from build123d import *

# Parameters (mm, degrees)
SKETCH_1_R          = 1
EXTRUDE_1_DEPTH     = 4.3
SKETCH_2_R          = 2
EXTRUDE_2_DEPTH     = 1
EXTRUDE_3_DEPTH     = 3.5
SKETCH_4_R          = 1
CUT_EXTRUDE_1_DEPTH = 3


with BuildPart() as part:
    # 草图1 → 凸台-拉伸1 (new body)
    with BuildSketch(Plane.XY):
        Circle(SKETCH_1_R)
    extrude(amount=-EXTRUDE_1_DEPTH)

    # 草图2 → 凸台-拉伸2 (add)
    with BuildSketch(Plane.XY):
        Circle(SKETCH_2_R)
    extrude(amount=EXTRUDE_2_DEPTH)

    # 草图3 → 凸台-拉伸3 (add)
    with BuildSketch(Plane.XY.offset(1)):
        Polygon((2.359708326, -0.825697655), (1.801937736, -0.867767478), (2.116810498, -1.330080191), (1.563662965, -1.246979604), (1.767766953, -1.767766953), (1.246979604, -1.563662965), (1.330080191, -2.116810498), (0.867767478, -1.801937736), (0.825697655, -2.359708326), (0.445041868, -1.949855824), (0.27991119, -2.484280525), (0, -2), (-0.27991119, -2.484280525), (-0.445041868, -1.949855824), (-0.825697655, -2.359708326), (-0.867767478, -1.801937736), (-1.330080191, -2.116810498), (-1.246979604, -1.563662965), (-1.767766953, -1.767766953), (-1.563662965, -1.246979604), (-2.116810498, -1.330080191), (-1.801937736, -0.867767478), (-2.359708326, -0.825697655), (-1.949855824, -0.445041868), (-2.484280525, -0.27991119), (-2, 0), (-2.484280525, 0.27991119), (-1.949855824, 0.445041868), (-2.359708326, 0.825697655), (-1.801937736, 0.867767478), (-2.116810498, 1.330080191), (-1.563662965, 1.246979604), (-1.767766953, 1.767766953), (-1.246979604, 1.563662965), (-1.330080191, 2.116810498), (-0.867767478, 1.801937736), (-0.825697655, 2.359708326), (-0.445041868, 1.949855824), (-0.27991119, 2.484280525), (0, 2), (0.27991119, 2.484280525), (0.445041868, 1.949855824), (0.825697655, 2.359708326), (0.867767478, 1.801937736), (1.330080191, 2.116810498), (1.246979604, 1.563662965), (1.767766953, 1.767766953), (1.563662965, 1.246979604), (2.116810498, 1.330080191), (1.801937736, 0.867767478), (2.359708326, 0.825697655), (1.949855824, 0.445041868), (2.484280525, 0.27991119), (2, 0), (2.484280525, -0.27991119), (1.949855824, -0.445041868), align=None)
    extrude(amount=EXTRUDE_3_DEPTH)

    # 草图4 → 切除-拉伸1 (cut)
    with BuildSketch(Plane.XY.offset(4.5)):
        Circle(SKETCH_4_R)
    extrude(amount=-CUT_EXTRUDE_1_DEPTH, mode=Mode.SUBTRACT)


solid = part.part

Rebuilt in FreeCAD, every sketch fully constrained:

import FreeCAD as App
import Part
import Sketcher

doc = App.newDocument("Part")
body = doc.addObject("PartDesign::Body", "Body")

# Sketch on XY plane
sketch1 = doc.addObject("Sketcher::SketchObject", "Sketch")
body.addObject(sketch1)
sketch1.AttachmentSupport = (doc.XY_Plane, [""])
sketch1.MapMode = "FlatFace"
sketch1.addGeometry(Part.Circle(App.Vector(0, 0, 0), App.Vector(0, 0, 1), 1), False)
sketch1.addConstraint(Sketcher.Constraint("Coincident", 0, 3, -1, 1))
sketch1.addConstraint(Sketcher.Constraint("Diameter", 0, 2.0))
pad1 = doc.addObject("PartDesign::Pad", "Pad")
body.addObject(pad1)
pad1.Profile = sketch1
pad1.Length = 4.3
pad1.Reversed = True

# Sketch on XY plane
sketch2 = doc.addObject("Sketcher::SketchObject", "Sketch001")
body.addObject(sketch2)
sketch2.AttachmentSupport = (doc.XY_Plane, [""])
sketch2.MapMode = "FlatFace"
sketch2.addGeometry(Part.Circle(App.Vector(0, 0, 0), App.Vector(0, 0, 1), 2), False)
sketch2.addConstraint(Sketcher.Constraint("Coincident", 0, 3, -1, 1))
sketch2.addConstraint(Sketcher.Constraint("Diameter", 0, 4.0))
pad2 = doc.addObject("PartDesign::Pad", "Pad001")
body.addObject(pad2)
pad2.Profile = sketch2
pad2.Length = 1

# Sketch on XY plane
sketch3 = doc.addObject("Sketcher::SketchObject", "Sketch002")
body.addObject(sketch3)
sketch3.AttachmentSupport = (doc.XY_Plane, [""])
sketch3.MapMode = "FlatFace"
sketch3.AttachmentOffset = App.Placement(App.Vector(0, 0, 1), App.Rotation())
sketch3.addGeometry(Part.LineSegment(App.Vector(1.8, -0.9, 0), App.Vector(2.4, -0.8, 0)), False)
sketch3.addGeometry(Part.LineSegment(App.Vector(2.4, -0.8, 0), App.Vector(1.9, -0.4, 0)), False)
sketch3.addGeometry(Part.LineSegment(App.Vector(1.9, -0.4, 0), App.Vector(2.5, -0.3, 0)), False)
sketch3.addGeometry(Part.LineSegment(App.Vector(2.5, -0.3, 0), App.Vector(2, 0, 0)), False)
sketch3.addGeometry(Part.LineSegment(App.Vector(2, 0, 0), App.Vector(2.5, 0.3, 0)), False)
sketch3.addGeometry(Part.LineSegment(App.Vector(2.5, 0.3, 0), App.Vector(1.9, 0.4, 0)), False)
sketch3.addGeometry(Part.LineSegment(App.Vector(1.9, 0.4, 0), App.Vector(2.4, 0.8, 0)), False)
sketch3.addGeometry(Part.LineSegment(App.Vector(2.4, 0.8, 0), App.Vector(1.8, 0.9, 0)), False)
sketch3.addGeometry(Part.LineSegment(App.Vector(1.8, 0.9, 0), App.Vector(2.1, 1.3, 0)), False)
sketch3.addGeometry(Part.LineSegment(App.Vector(2.1, 1.3, 0), App.Vector(1.6, 1.2, 0)), False)
sketch3.addGeometry(Part.LineSegment(App.Vector(1.6, 1.2, 0), App.Vector(1.8, 1.8, 0)), False)
sketch3.addGeometry(Part.LineSegment(App.Vector(1.8, 1.8, 0), App.Vector(1.2, 1.6, 0)), False)
sketch3.addGeometry(Part.LineSegment(App.Vector(1.2, 1.6, 0), App.Vector(1.3, 2.1, 0)), False)
sketch3.addGeometry(Part.LineSegment(App.Vector(1.3, 2.1, 0), App.Vector(0.9, 1.8, 0)), False)
sketch3.addGeometry(Part.LineSegment(App.Vector(0.9, 1.8, 0), App.Vector(0.8, 2.4, 0)), False)
sketch3.addGeometry(Part.LineSegment(App.Vector(0.8, 2.4, 0), App.Vector(0.4, 1.9, 0)), False)
sketch3.addGeometry(Part.LineSegment(App.Vector(0.4, 1.9, 0), App.Vector(0.3, 2.5, 0)), False)
sketch3.addGeometry(Part.LineSegment(App.Vector(0.3, 2.5, 0), App.Vector(0, 2, 0)), False)
sketch3.addGeometry(Part.LineSegment(App.Vector(0, 2, 0), App.Vector(-0.3, 2.5, 0)), False)
sketch3.addGeometry(Part.LineSegment(App.Vector(-0.3, 2.5, 0), App.Vector(-0.4, 1.9, 0)), False)
sketch3.addGeometry(Part.LineSegment(App.Vector(-0.4, 1.9, 0), App.Vector(-0.8, 2.4, 0)), False)
sketch3.addGeometry(Part.LineSegment(App.Vector(-0.8, 2.4, 0), App.Vector(-0.9, 1.8, 0)), False)
sketch3.addGeometry(Part.LineSegment(App.Vector(-0.9, 1.8, 0), App.Vector(-1.3, 2.1, 0)), False)
sketch3.addGeometry(Part.LineSegment(App.Vector(-1.3, 2.1, 0), App.Vector(-1.2, 1.6, 0)), False)
sketch3.addGeometry(Part.LineSegment(App.Vector(-1.2, 1.6, 0), App.Vector(-1.8, 1.8, 0)), False)
sketch3.addGeometry(Part.LineSegment(App.Vector(-1.8, 1.8, 0), App.Vector(-1.6, 1.2, 0)), False)
sketch3.addGeometry(Part.LineSegment(App.Vector(-1.6, 1.2, 0), App.Vector(-2.1, 1.3, 0)), False)
sketch3.addGeometry(Part.LineSegment(App.Vector(-2.1, 1.3, 0), App.Vector(-1.8, 0.9, 0)), False)
sketch3.addGeometry(Part.LineSegment(App.Vector(-1.8, 0.9, 0), App.Vector(-2.4, 0.8, 0)), False)
sketch3.addGeometry(Part.LineSegment(App.Vector(-2.4, 0.8, 0), App.Vector(-1.9, 0.4, 0)), False)
sketch3.addGeometry(Part.LineSegment(App.Vector(-1.9, 0.4, 0), App.Vector(-2.5, 0.3, 0)), False)
sketch3.addGeometry(Part.LineSegment(App.Vector(-2.5, 0.3, 0), App.Vector(-2, 0, 0)), False)
sketch3.addGeometry(Part.LineSegment(App.Vector(-2, 0, 0), App.Vector(-2.5, -0.3, 0)), False)
sketch3.addGeometry(Part.LineSegment(App.Vector(-2.5, -0.3, 0), App.Vector(-1.9, -0.4, 0)), False)
sketch3.addGeometry(Part.LineSegment(App.Vector(-1.9, -0.4, 0), App.Vector(-2.4, -0.8, 0)), False)
sketch3.addGeometry(Part.LineSegment(App.Vector(-2.4, -0.8, 0), App.Vector(-1.8, -0.9, 0)), False)
sketch3.addGeometry(Part.LineSegment(App.Vector(-1.8, -0.9, 0), App.Vector(-2.1, -1.3, 0)), False)
sketch3.addGeometry(Part.LineSegment(App.Vector(-2.1, -1.3, 0), App.Vector(-1.6, -1.2, 0)), False)
sketch3.addGeometry(Part.LineSegment(App.Vector(-1.6, -1.2, 0), App.Vector(-1.8, -1.8, 0)), False)
sketch3.addGeometry(Part.LineSegment(App.Vector(-1.8, -1.8, 0), App.Vector(-1.2, -1.6, 0)), False)
sketch3.addGeometry(Part.LineSegment(App.Vector(-1.2, -1.6, 0), App.Vector(-1.3, -2.1, 0)), False)
sketch3.addGeometry(Part.LineSegment(App.Vector(-1.3, -2.1, 0), App.Vector(-0.9, -1.8, 0)), False)
sketch3.addGeometry(Part.LineSegment(App.Vector(-0.9, -1.8, 0), App.Vector(-0.8, -2.4, 0)), False)
sketch3.addGeometry(Part.LineSegment(App.Vector(-0.8, -2.4, 0), App.Vector(-0.4, -1.9, 0)), False)
sketch3.addGeometry(Part.LineSegment(App.Vector(-0.4, -1.9, 0), App.Vector(-0.3, -2.5, 0)), False)
sketch3.addGeometry(Part.LineSegment(App.Vector(-0.3, -2.5, 0), App.Vector(0, -2, 0)), False)
sketch3.addGeometry(Part.LineSegment(App.Vector(0, -2, 0), App.Vector(0.3, -2.5, 0)), False)
sketch3.addGeometry(Part.LineSegment(App.Vector(0.3, -2.5, 0), App.Vector(0.4, -1.9, 0)), False)
sketch3.addGeometry(Part.LineSegment(App.Vector(0.4, -1.9, 0), App.Vector(0.8, -2.4, 0)), False)
sketch3.addGeometry(Part.LineSegment(App.Vector(0.8, -2.4, 0), App.Vector(0.9, -1.8, 0)), False)
sketch3.addGeometry(Part.LineSegment(App.Vector(0.9, -1.8, 0), App.Vector(1.3, -2.1, 0)), False)
sketch3.addGeometry(Part.LineSegment(App.Vector(1.3, -2.1, 0), App.Vector(1.2, -1.6, 0)), False)
sketch3.addGeometry(Part.LineSegment(App.Vector(1.2, -1.6, 0), App.Vector(1.8, -1.8, 0)), False)
sketch3.addGeometry(Part.LineSegment(App.Vector(1.8, -1.8, 0), App.Vector(1.6, -1.2, 0)), False)
sketch3.addGeometry(Part.LineSegment(App.Vector(1.6, -1.2, 0), App.Vector(2.1, -1.3, 0)), False)
sketch3.addGeometry(Part.LineSegment(App.Vector(2.1, -1.3, 0), App.Vector(1.8, -0.9, 0)), False)
sketch3.addConstraint(Sketcher.Constraint("Coincident", 0, 2, 1, 1))
sketch3.addConstraint(Sketcher.Constraint("Coincident", 1, 2, 2, 1))
sketch3.addConstraint(Sketcher.Constraint("Coincident", 2, 2, 3, 1))
sketch3.addConstraint(Sketcher.Constraint("Coincident", 3, 2, 4, 1))
sketch3.addConstraint(Sketcher.Constraint("Coincident", 4, 2, 5, 1))
sketch3.addConstraint(Sketcher.Constraint("Coincident", 5, 2, 6, 1))
sketch3.addConstraint(Sketcher.Constraint("Coincident", 6, 2, 7, 1))
sketch3.addConstraint(Sketcher.Constraint("Coincident", 7, 2, 8, 1))
sketch3.addConstraint(Sketcher.Constraint("Coincident", 8, 2, 9, 1))
sketch3.addConstraint(Sketcher.Constraint("Coincident", 9, 2, 10, 1))
sketch3.addConstraint(Sketcher.Constraint("Coincident", 10, 2, 11, 1))
sketch3.addConstraint(Sketcher.Constraint("Coincident", 11, 2, 12, 1))
sketch3.addConstraint(Sketcher.Constraint("Coincident", 12, 2, 13, 1))
sketch3.addConstraint(Sketcher.Constraint("Coincident", 13, 2, 14, 1))
sketch3.addConstraint(Sketcher.Constraint("Coincident", 14, 2, 15, 1))
sketch3.addConstraint(Sketcher.Constraint("Coincident", 15, 2, 16, 1))
sketch3.addConstraint(Sketcher.Constraint("Coincident", 16, 2, 17, 1))
sketch3.addConstraint(Sketcher.Constraint("Coincident", 17, 2, 18, 1))
sketch3.addConstraint(Sketcher.Constraint("Coincident", 18, 2, 19, 1))
sketch3.addConstraint(Sketcher.Constraint("Coincident", 19, 2, 20, 1))
sketch3.addConstraint(Sketcher.Constraint("Coincident", 20, 2, 21, 1))
sketch3.addConstraint(Sketcher.Constraint("Coincident", 21, 2, 22, 1))
sketch3.addConstraint(Sketcher.Constraint("Coincident", 22, 2, 23, 1))
sketch3.addConstraint(Sketcher.Constraint("Coincident", 23, 2, 24, 1))
sketch3.addConstraint(Sketcher.Constraint("Coincident", 24, 2, 25, 1))
sketch3.addConstraint(Sketcher.Constraint("Coincident", 25, 2, 26, 1))
sketch3.addConstraint(Sketcher.Constraint("Coincident", 26, 2, 27, 1))
sketch3.addConstraint(Sketcher.Constraint("Coincident", 27, 2, 28, 1))
sketch3.addConstraint(Sketcher.Constraint("Coincident", 28, 2, 29, 1))
sketch3.addConstraint(Sketcher.Constraint("Coincident", 29, 2, 30, 1))
sketch3.addConstraint(Sketcher.Constraint("Coincident", 30, 2, 31, 1))
sketch3.addConstraint(Sketcher.Constraint("Coincident", 31, 2, 32, 1))
sketch3.addConstraint(Sketcher.Constraint("Coincident", 32, 2, 33, 1))
sketch3.addConstraint(Sketcher.Constraint("Coincident", 33, 2, 34, 1))
sketch3.addConstraint(Sketcher.Constraint("Coincident", 34, 2, 35, 1))
sketch3.addConstraint(Sketcher.Constraint("Coincident", 35, 2, 36, 1))
sketch3.addConstraint(Sketcher.Constraint("Coincident", 36, 2, 37, 1))
sketch3.addConstraint(Sketcher.Constraint("Coincident", 37, 2, 38, 1))
sketch3.addConstraint(Sketcher.Constraint("Coincident", 38, 2, 39, 1))
sketch3.addConstraint(Sketcher.Constraint("Coincident", 39, 2, 40, 1))
sketch3.addConstraint(Sketcher.Constraint("Coincident", 40, 2, 41, 1))
sketch3.addConstraint(Sketcher.Constraint("Coincident", 41, 2, 42, 1))
sketch3.addConstraint(Sketcher.Constraint("Coincident", 42, 2, 43, 1))
sketch3.addConstraint(Sketcher.Constraint("Coincident", 43, 2, 44, 1))
sketch3.addConstraint(Sketcher.Constraint("Coincident", 44, 2, 45, 1))
sketch3.addConstraint(Sketcher.Constraint("Coincident", 45, 2, 46, 1))
sketch3.addConstraint(Sketcher.Constraint("Coincident", 46, 2, 47, 1))
sketch3.addConstraint(Sketcher.Constraint("Coincident", 47, 2, 48, 1))
sketch3.addConstraint(Sketcher.Constraint("Coincident", 48, 2, 49, 1))
sketch3.addConstraint(Sketcher.Constraint("Coincident", 49, 2, 50, 1))
sketch3.addConstraint(Sketcher.Constraint("Coincident", 50, 2, 51, 1))
sketch3.addConstraint(Sketcher.Constraint("Coincident", 51, 2, 52, 1))
sketch3.addConstraint(Sketcher.Constraint("Coincident", 52, 2, 53, 1))
sketch3.addConstraint(Sketcher.Constraint("Coincident", 53, 2, 54, 1))
sketch3.addConstraint(Sketcher.Constraint("Coincident", 54, 2, 55, 1))
sketch3.addConstraint(Sketcher.Constraint("Coincident", 55, 2, 0, 1))
sketch3.addConstraint(Sketcher.Constraint("Symmetric", 0, 2, 28, 2, -1, 1))
sketch3.addConstraint(Sketcher.Constraint("Symmetric", 1, 2, 29, 2, -1, 1))
sketch3.addConstraint(Sketcher.Constraint("Symmetric", 2, 2, 30, 2, -1, 1))
sketch3.addConstraint(Sketcher.Constraint("Symmetric", 3, 2, 31, 2, -1, 1))
sketch3.addConstraint(Sketcher.Constraint("Symmetric", 4, 2, 32, 2, -1, 1))
sketch3.addConstraint(Sketcher.Constraint("Symmetric", 5, 2, 33, 2, -1, 1))
sketch3.addConstraint(Sketcher.Constraint("Symmetric", 6, 2, 34, 2, -1, 1))
sketch3.addConstraint(Sketcher.Constraint("Symmetric", 7, 2, 35, 2, -1, 1))
sketch3.addConstraint(Sketcher.Constraint("Symmetric", 8, 2, 36, 2, -1, 1))
sketch3.addConstraint(Sketcher.Constraint("Symmetric", 9, 2, 37, 2, -1, 1))
sketch3.addConstraint(Sketcher.Constraint("Symmetric", 10, 2, 38, 2, -1, 1))
sketch3.addConstraint(Sketcher.Constraint("Symmetric", 11, 2, 39, 2, -1, 1))
sketch3.addConstraint(Sketcher.Constraint("Symmetric", 12, 2, 40, 2, -1, 1))
sketch3.addConstraint(Sketcher.Constraint("Symmetric", 13, 2, 41, 2, -1, 1))
sketch3.addConstraint(Sketcher.Constraint("Symmetric", 14, 2, 42, 2, -1, 1))
sketch3.addConstraint(Sketcher.Constraint("Symmetric", 15, 2, 43, 2, -1, 1))
sketch3.addConstraint(Sketcher.Constraint("Symmetric", 16, 2, 44, 2, -1, 1))
sketch3.addConstraint(Sketcher.Constraint("Symmetric", 17, 2, 45, 2, -1, 1))
sketch3.addConstraint(Sketcher.Constraint("Symmetric", 18, 2, 46, 2, -1, 1))
sketch3.addConstraint(Sketcher.Constraint("Symmetric", 19, 2, 47, 2, -1, 1))
sketch3.addConstraint(Sketcher.Constraint("Symmetric", 20, 2, 48, 2, -1, 1))
sketch3.addConstraint(Sketcher.Constraint("Symmetric", 21, 2, 49, 2, -1, 1))
sketch3.addConstraint(Sketcher.Constraint("Symmetric", 22, 2, 50, 2, -1, 1))
sketch3.addConstraint(Sketcher.Constraint("Symmetric", 23, 2, 51, 2, -1, 1))
sketch3.addConstraint(Sketcher.Constraint("Symmetric", 24, 2, 52, 2, -1, 1))
sketch3.addConstraint(Sketcher.Constraint("Symmetric", 25, 2, 53, 2, -1, 1))
sketch3.addConstraint(Sketcher.Constraint("Symmetric", 26, 2, 54, 2, -1, 1))
sketch3.addConstraint(Sketcher.Constraint("Symmetric", 27, 2, 55, 2, -1, 1))
sketch3.addConstraint(Sketcher.Constraint("Symmetric", 16, 2, 18, 2, -2))
sketch3.addConstraint(Sketcher.Constraint("Symmetric", 15, 2, 19, 2, -2))
sketch3.addConstraint(Sketcher.Constraint("Symmetric", 14, 2, 20, 2, -2))
sketch3.addConstraint(Sketcher.Constraint("Symmetric", 13, 2, 21, 2, -2))
sketch3.addConstraint(Sketcher.Constraint("Symmetric", 12, 2, 22, 2, -2))
sketch3.addConstraint(Sketcher.Constraint("Symmetric", 11, 2, 23, 2, -2))
sketch3.addConstraint(Sketcher.Constraint("Symmetric", 10, 2, 24, 2, -2))
sketch3.addConstraint(Sketcher.Constraint("Symmetric", 9, 2, 25, 2, -2))
sketch3.addConstraint(Sketcher.Constraint("Symmetric", 8, 2, 26, 2, -2))
sketch3.addConstraint(Sketcher.Constraint("Symmetric", 7, 2, 27, 2, -2))
sketch3.addConstraint(Sketcher.Constraint("Symmetric", 6, 2, 28, 2, -2))
sketch3.addConstraint(Sketcher.Constraint("Symmetric", 5, 2, 29, 2, -2))
sketch3.addConstraint(Sketcher.Constraint("Symmetric", 4, 2, 30, 2, -2))
sketch3.addConstraint(Sketcher.Constraint("PointOnObject", 3, 2, -1))
sketch3.addConstraint(Sketcher.Constraint("PointOnObject", 17, 2, -2))
sketch3.addConstraint(Sketcher.Constraint("Perpendicular", 0, 14))
sketch3.addConstraint(Sketcher.Constraint("Perpendicular", 1, 15))
sketch3.addConstraint(Sketcher.Constraint("Perpendicular", 2, 16))
sketch3.addConstraint(Sketcher.Constraint("Perpendicular", 3, 17))
sketch3.addConstraint(Sketcher.Constraint("Perpendicular", 8, 22))
sketch3.addConstraint(Sketcher.Constraint("Perpendicular", 9, 23))
sketch3.addConstraint(Sketcher.Constraint("Perpendicular", 10, 24))
sketch3.addConstraint(Sketcher.Constraint("Equal", 0, 1))
sketch3.addConstraint(Sketcher.Constraint("Equal", 1, 2))
sketch3.addConstraint(Sketcher.Constraint("Equal", 2, 3))
sketch3.addConstraint(Sketcher.Constraint("Equal", 7, 8))
sketch3.addConstraint(Sketcher.Constraint("Equal", 8, 9))
sketch3.addConstraint(Sketcher.Constraint("Equal", 9, 10))
sketch3.addConstraint(Sketcher.Constraint("Equal", 10, 11))
sketch3.addConstraint(Sketcher.Constraint("Equal", 11, 12))
sketch3.addConstraint(Sketcher.Constraint("Equal", 12, 13))
sketch3.addConstraint(Sketcher.Constraint("Equal", 13, 14))
sketch3.addConstraint(Sketcher.Constraint("Equal", 14, 15))
sketch3.addConstraint(Sketcher.Constraint("Equal", 15, 16))
sketch3.addConstraint(Sketcher.Constraint("Equal", 16, 17))
sketch3.addConstraint(Sketcher.Constraint("DistanceX", -1, 1, 3, 2, 2.0))
sketch3.addConstraint(Sketcher.Constraint("DistanceY", 7, 2, 10, 2, 0.899999))
sketch3.addConstraint(Sketcher.Constraint("DistanceY", 9, 2, 8, 2, 0.083101))
sketch3.addConstraint(Sketcher.Constraint("DistanceX", -1, 1, 0, 2, 2.359708))
sketch3.addConstraint(Sketcher.Constraint("DistanceY", 1, 2, -1, 1, 0.445042))
sketch3.addConstraint(Sketcher.Constraint("DistanceX", -1, 1, 2, 2, 2.484281))
sketch3.addConstraint(Sketcher.Constraint("DistanceY", 2, 2, -1, 1, 0.279911))
sketch3.addConstraint(Sketcher.Constraint("DistanceX", -1, 1, 8, 2, 2.11681))
pad3 = doc.addObject("PartDesign::Pad", "Pad002")
body.addObject(pad3)
pad3.Profile = sketch3
pad3.Length = 3.5

# Sketch on XY plane
sketch4 = doc.addObject("Sketcher::SketchObject", "Sketch003")
body.addObject(sketch4)
sketch4.AttachmentSupport = (doc.XY_Plane, [""])
sketch4.MapMode = "FlatFace"
sketch4.AttachmentOffset = App.Placement(App.Vector(0, 0, 4.5), App.Rotation())
sketch4.addGeometry(Part.Circle(App.Vector(0, 0, 0), App.Vector(0, 0, 1), 1), False)
sketch4.addConstraint(Sketcher.Constraint("Coincident", 0, 3, -1, 1))
sketch4.addConstraint(Sketcher.Constraint("Diameter", 0, 2.0))
pocket1 = doc.addObject("PartDesign::Pocket", "Pocket")
body.addObject(pocket1)
pocket1.Profile = sketch4
pocket1.Length = 3

doc.recompute()
